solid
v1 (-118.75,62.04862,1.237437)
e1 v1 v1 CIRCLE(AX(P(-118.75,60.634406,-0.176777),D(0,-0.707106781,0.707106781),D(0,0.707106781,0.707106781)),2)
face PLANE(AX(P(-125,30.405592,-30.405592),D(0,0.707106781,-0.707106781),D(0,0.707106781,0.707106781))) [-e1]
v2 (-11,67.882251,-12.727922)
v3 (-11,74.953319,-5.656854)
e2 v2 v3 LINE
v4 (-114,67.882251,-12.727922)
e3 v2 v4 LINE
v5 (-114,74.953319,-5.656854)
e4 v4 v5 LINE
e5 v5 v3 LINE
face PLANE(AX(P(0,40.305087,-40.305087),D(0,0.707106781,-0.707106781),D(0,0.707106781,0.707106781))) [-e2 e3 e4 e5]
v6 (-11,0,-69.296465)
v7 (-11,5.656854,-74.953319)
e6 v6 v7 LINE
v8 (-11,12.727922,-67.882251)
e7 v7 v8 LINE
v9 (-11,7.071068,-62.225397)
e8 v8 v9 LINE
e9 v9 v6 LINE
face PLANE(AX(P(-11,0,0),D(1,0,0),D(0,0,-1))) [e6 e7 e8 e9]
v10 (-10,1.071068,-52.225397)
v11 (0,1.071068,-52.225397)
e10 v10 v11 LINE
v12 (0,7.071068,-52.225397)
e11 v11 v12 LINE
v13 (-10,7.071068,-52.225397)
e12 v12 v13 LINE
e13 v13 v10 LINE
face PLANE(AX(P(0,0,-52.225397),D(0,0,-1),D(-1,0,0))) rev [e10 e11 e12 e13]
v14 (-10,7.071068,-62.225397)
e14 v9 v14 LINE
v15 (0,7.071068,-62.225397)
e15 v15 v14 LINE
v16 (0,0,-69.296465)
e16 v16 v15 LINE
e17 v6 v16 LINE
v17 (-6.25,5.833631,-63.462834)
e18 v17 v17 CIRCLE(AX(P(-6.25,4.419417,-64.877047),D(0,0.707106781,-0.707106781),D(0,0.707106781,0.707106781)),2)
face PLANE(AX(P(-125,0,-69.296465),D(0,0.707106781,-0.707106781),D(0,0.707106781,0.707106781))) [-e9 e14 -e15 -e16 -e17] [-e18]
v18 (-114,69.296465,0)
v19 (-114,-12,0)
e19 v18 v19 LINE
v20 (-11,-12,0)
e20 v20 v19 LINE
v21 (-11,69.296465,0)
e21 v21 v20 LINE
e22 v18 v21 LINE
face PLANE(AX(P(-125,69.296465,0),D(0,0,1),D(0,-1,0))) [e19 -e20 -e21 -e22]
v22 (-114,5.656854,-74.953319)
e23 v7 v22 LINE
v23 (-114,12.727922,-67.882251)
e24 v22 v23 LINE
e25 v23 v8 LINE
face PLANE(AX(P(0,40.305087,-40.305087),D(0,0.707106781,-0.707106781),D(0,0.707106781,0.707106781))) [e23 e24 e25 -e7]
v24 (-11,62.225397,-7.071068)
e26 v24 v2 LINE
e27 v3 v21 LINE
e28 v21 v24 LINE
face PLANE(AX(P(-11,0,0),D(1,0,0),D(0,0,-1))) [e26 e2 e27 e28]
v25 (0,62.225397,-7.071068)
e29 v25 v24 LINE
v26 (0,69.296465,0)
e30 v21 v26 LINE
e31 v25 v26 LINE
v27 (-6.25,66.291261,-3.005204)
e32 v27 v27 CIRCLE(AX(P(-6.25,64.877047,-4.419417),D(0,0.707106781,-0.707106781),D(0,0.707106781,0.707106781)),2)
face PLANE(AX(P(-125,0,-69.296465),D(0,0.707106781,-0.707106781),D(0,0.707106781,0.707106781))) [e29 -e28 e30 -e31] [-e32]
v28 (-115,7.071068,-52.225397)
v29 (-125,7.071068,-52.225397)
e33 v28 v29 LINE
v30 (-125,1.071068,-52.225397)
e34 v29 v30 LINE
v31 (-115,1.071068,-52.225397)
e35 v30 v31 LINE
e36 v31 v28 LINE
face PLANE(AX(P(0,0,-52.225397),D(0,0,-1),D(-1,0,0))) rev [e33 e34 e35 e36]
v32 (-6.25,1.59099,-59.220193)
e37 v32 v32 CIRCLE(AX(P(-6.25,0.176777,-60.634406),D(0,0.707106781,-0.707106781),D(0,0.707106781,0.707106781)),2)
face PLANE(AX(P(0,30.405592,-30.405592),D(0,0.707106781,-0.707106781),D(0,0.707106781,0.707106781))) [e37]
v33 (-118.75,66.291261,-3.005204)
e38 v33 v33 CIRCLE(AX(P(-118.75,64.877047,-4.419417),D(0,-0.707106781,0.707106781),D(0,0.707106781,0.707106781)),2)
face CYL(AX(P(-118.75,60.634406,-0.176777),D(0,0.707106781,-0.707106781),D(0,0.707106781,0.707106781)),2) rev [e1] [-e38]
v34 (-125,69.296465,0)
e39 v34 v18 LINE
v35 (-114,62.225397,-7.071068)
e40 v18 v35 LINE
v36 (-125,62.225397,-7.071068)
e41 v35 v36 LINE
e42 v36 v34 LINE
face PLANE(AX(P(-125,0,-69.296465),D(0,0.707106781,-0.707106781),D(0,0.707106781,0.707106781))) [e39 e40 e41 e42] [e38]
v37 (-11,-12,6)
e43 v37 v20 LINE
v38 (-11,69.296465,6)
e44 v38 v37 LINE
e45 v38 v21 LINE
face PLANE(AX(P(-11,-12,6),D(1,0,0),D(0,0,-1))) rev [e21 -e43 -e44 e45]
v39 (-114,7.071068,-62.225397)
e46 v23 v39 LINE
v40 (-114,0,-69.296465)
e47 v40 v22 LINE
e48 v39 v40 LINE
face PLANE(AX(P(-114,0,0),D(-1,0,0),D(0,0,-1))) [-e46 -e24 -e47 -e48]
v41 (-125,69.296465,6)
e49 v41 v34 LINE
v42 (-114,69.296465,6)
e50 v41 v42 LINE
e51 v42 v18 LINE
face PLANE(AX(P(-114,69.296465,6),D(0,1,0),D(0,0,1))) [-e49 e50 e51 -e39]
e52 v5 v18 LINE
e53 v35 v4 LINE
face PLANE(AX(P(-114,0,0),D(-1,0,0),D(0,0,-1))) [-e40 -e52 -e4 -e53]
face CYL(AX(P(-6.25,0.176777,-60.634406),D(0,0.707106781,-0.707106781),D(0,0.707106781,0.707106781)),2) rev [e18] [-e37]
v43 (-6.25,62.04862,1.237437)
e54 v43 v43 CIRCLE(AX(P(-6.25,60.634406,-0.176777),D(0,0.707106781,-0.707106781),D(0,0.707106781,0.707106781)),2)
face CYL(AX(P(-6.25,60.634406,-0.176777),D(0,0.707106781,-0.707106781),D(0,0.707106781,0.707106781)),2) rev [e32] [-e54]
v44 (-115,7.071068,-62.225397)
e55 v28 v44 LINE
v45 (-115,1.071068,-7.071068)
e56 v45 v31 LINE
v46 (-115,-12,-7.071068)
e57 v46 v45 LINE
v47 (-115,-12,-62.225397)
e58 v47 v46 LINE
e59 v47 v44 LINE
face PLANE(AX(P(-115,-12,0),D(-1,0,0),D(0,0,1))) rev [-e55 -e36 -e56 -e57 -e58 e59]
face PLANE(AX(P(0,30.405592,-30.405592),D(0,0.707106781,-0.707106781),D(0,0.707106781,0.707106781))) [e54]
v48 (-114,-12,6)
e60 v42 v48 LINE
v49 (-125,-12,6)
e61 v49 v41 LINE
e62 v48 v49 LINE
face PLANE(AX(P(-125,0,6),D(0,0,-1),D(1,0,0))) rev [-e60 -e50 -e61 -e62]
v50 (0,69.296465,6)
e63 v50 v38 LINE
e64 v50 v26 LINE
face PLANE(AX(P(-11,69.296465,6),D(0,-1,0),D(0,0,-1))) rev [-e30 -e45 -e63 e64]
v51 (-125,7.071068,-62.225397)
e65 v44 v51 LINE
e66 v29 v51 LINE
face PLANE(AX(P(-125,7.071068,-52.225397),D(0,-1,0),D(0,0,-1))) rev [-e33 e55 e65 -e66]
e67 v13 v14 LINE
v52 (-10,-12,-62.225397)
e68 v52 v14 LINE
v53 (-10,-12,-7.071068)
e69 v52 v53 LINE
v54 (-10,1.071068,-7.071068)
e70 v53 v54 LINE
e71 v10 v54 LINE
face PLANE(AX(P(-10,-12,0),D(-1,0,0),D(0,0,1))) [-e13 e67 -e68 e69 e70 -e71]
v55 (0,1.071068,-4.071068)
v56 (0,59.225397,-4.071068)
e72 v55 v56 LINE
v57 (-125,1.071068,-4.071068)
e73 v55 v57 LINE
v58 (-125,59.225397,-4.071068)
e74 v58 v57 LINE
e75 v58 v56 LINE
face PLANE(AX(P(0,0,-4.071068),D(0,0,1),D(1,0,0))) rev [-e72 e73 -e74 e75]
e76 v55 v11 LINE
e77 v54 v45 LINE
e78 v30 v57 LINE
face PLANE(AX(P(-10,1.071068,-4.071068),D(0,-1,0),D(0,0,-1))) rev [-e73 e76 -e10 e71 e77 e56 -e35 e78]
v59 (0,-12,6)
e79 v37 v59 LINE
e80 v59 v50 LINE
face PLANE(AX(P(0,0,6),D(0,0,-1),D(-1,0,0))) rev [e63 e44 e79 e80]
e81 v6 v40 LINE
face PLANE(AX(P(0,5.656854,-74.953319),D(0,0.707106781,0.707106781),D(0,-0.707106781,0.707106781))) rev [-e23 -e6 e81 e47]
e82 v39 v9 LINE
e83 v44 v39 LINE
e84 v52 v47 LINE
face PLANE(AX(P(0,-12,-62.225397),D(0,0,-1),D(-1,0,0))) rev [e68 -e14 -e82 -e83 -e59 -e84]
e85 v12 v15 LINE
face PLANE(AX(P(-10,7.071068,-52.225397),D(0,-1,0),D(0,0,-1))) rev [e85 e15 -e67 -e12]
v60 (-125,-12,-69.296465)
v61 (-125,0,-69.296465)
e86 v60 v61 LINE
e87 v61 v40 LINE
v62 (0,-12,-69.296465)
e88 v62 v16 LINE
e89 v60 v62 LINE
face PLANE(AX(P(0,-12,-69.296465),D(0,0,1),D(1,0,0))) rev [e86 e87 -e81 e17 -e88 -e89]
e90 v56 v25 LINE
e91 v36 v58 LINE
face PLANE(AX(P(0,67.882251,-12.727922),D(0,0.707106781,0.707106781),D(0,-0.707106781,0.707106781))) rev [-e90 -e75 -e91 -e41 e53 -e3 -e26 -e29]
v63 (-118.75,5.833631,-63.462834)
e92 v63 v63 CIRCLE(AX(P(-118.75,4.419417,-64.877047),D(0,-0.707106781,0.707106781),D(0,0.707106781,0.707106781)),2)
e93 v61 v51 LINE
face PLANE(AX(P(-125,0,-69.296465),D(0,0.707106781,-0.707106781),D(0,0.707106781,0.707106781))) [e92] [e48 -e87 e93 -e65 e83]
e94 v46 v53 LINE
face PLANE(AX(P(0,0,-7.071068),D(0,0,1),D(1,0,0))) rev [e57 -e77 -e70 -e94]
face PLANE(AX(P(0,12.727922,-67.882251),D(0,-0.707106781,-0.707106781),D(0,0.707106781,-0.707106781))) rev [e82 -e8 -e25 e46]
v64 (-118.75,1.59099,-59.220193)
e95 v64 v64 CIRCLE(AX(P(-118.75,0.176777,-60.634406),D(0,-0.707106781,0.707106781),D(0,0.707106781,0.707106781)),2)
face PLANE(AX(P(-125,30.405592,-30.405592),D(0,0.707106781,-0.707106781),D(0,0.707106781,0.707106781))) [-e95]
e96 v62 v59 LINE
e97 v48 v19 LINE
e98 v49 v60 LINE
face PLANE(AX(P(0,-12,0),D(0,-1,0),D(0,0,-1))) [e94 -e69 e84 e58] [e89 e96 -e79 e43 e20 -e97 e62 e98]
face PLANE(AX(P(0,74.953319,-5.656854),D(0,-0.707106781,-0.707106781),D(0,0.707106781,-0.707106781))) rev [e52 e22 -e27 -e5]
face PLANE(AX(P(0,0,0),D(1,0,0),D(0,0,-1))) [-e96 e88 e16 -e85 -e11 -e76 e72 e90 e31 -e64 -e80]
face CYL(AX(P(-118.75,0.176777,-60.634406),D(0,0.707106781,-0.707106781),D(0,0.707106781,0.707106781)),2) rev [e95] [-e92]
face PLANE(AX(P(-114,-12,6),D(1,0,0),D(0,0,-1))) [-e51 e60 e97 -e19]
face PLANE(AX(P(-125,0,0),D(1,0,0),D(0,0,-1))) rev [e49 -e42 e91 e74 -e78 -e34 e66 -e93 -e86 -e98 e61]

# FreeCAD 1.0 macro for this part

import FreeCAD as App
import Part
import Sketcher
from FreeCAD import Vector
Q = App.Units.Quantity


def add_polygon(sketch, points):
    """Adds a closed chain of lines whose ends are joined by coincident constraints."""
    first, n = sketch.GeometryCount, len(points)
    for a, b in zip(points, points[1:] + points[:1]):
        sketch.addGeometry(Part.LineSegment(App.Vector(*a, 0), App.Vector(*b, 0)), False)
    for i in range(n):
        sketch.addConstraint(Sketcher.Constraint("Coincident", first + i, 2, first + (i + 1) % n, 1))

doc = App.newDocument("Part")
body = doc.addObject("PartDesign::Body", "Body")

sketch1 = doc.addObject("Sketcher::SketchObject", "Sketch")
body.addObject(sketch1)
sketch1.AttachmentSupport = (doc.YZ_Plane, [""])
sketch1.MapMode = "FlatFace"
add_polygon(sketch1, [(0, 0), (0, -69), (69, 0)])
sketch1.addConstraint(Sketcher.Constraint("Vertical", 0))
sketch1.addConstraint(Sketcher.Constraint("Horizontal", 2))
sketch1.addConstraint(Sketcher.Constraint("Coincident", 2, 2, -1, 1))
sketch1.addConstraint(Sketcher.Constraint("Equal", 2, 0))
sketch1.addConstraint(Sketcher.Constraint("Distance", 1, Q("98 mm")))
pad1 = doc.addObject("PartDesign::Pad", "Pad")
body.addObject(pad1)
pad1.Profile = sketch1
pad1.Length = 125
pad1.Reversed = True

sketch2 = doc.addObject("Sketcher::SketchObject", "Sketch001")
body.addObject(sketch2)
sketch2.AttachmentSupport = (doc.XZ_Plane, [""])
sketch2.MapMode = "FlatFace"
add_polygon(sketch2, [(-125, 0), (-125, -69), (0, -69), (0, 0)])
sketch2.addConstraint(Sketcher.Constraint("Vertical", 0))
sketch2.addConstraint(Sketcher.Constraint("Horizontal", 1))
sketch2.addConstraint(Sketcher.Constraint("Vertical", 2))
sketch2.addConstraint(Sketcher.Constraint("Horizontal", 3))
sketch2.addConstraint(Sketcher.Constraint("Coincident", 2, 2, -1, 1))
sketch2.addConstraint(Sketcher.Constraint("DistanceX", 1, 1, 1, 2, Q("125 mm")))
sketch2.addConstraint(Sketcher.Constraint("DistanceY", 0, 2, 0, 1, Q("69.296465 mm")))
pad2 = doc.addObject("PartDesign::Pad", "Pad001")
body.addObject(pad2)
pad2.Profile = sketch2
pad2.Length = 12

sketch3 = doc.addObject("Sketcher::SketchObject", "Sketch002")
body.addObject(sketch3)
sketch3.AttachmentSupport = (doc.YZ_Plane, [""])
sketch3.MapMode = "FlatFace"
sketch3.AttachmentOffset = App.Placement(Vector(0, 0, -125), App.Rotation())
add_polygon(sketch3, [(62, -7), (7, -62), (7, -7)])
sketch3.addConstraint(Sketcher.Constraint("Vertical", 1))
sketch3.addConstraint(Sketcher.Constraint("Horizontal", 2))
sketch3.addConstraint(Sketcher.Constraint("Equal", 2, 1))
sketch3.addConstraint(Sketcher.Constraint("Distance", 0, Q("78 mm")))
sketch3.addConstraint(Sketcher.Constraint("DistanceX", -1, 1, 0, 2, Q("7.071068 mm")))
sketch3.addConstraint(Sketcher.Constraint("DistanceY", 0, 2, -1, 1, Q("62.225397 mm")))
pocket1 = doc.addObject("PartDesign::Pocket", "Pocket")
body.addObject(pocket1)
pocket1.Profile = sketch3
pocket1.Type = "ThroughAll"
pocket1.Reversed = True

sketch4 = doc.addObject("Sketcher::SketchObject", "Sketch003")
body.addObject(sketch4)
sketch4.Placement = App.Placement(Vector(0, 34.648232, -34.648232), App.Rotation(Vector(1, 0, 0), Vector(0, -0.707106781, -0.707106781), Vector(0, 0.707106781, -0.707106781), "ZXY"))
add_polygon(sketch4, [(-115, 49), (-115, 39), (-10, 39), (-10, 49)])
sketch4.addConstraint(Sketcher.Constraint("Vertical", 0))
sketch4.addConstraint(Sketcher.Constraint("Horizontal", 1))
sketch4.addConstraint(Sketcher.Constraint("Vertical", 2))
sketch4.addConstraint(Sketcher.Constraint("Horizontal", 3))
sketch4.addConstraint(Sketcher.Constraint("DistanceX", 1, 1, 1, 2, Q("105 mm")))
sketch4.addConstraint(Sketcher.Constraint("DistanceY", 0, 2, 0, 1, Q("10 mm")))
sketch4.addConstraint(Sketcher.Constraint("DistanceX", 0, 2, -1, 1, Q("115 mm")))
sketch4.addConstraint(Sketcher.Constraint("DistanceY", -1, 1, 0, 2, Q("39 mm")))
pad3 = doc.addObject("PartDesign::Pad", "Pad002")
body.addObject(pad3)
pad3.Profile = sketch4
pad3.Length = 8

sketch5 = doc.addObject("Sketcher::SketchObject", "Sketch004")
body.addObject(sketch5)
sketch5.Placement = App.Placement(Vector(0, 34.648232, -34.648232), App.Rotation(Vector(1, 0, 0), Vector(0, -0.707106781, -0.707106781), Vector(0, 0.707106781, -0.707106781), "ZXY"))
add_polygon(sketch5, [(-115, -39), (-115, -49), (-10, -49), (-10, -39)])
sketch5.addConstraint(Sketcher.Constraint("Vertical", 0))
sketch5.addConstraint(Sketcher.Constraint("Horizontal", 1))
sketch5.addConstraint(Sketcher.Constraint("Vertical", 2))
sketch5.addConstraint(Sketcher.Constraint("Horizontal", 3))
sketch5.addConstraint(Sketcher.Constraint("DistanceX", 1, 1, 1, 2, Q("105 mm")))
sketch5.addConstraint(Sketcher.Constraint("DistanceY", 0, 2, 0, 1, Q("10 mm")))
sketch5.addConstraint(Sketcher.Constraint("DistanceX", 0, 2, -1, 1, Q("115 mm")))
sketch5.addConstraint(Sketcher.Constraint("DistanceY", 0, 2, -1, 1, Q("49 mm")))
pad4 = doc.addObject("PartDesign::Pad", "Pad003")
body.addObject(pad4)
pad4.Profile = sketch5
pad4.Length = 8

sketch6 = doc.addObject("Sketcher::SketchObject", "Sketch005")
body.addObject(sketch6)
sketch6.AttachmentSupport = (doc.XZ_Plane, [""])
sketch6.MapMode = "FlatFace"
sketch6.AttachmentOffset = App.Placement(Vector(0, 0, -7.071068), App.Rotation())
add_polygon(sketch6, [(-115, -62), (-115, -7), (-10, -7), (-10, -62)])
sketch6.addConstraint(Sketcher.Constraint("Vertical", 0))
sketch6.addConstraint(Sketcher.Constraint("Horizontal", 1))
sketch6.addConstraint(Sketcher.Constraint("Vertical", 2))
sketch6.addConstraint(Sketcher.Constraint("Horizontal", 3))
sketch6.addConstraint(Sketcher.Constraint("DistanceX", 1, 1, 1, 2, Q("105 mm")))
sketch6.addConstraint(Sketcher.Constraint("DistanceX", 0, 2, -1, 1, Q("115 mm")))
sketch6.addConstraint(Sketcher.Constraint("DistanceY", 0, 1, 0, 2, Q("55.154329 mm")))
sketch6.addConstraint(Sketcher.Constraint("DistanceY", 0, 2, -1, 1, Q("7.071068 mm")))
pocket2 = doc.addObject("PartDesign::Pocket", "Pocket001")
body.addObject(pocket2)
pocket2.Profile = sketch6
pocket2.Type = "ThroughAll"
pocket2.Reversed = True

sketch7 = doc.addObject("Sketcher::SketchObject", "Sketch006")
body.addObject(sketch7)
sketch7.AttachmentSupport = (doc.XZ_Plane, [""])
sketch7.MapMode = "FlatFace"
sketch7.AttachmentOffset = App.Placement(Vector(0, 0, -7.071068), App.Rotation())
add_polygon(sketch7, [(-10, -62), (-10, -7), (0, -7), (0, -62)])
sketch7.addConstraint(Sketcher.Constraint("Vertical", 0))
sketch7.addConstraint(Sketcher.Constraint("Horizontal", 1))
sketch7.addConstraint(Sketcher.Constraint("Vertical", 2))
sketch7.addConstraint(Sketcher.Constraint("Horizontal", 3))
sketch7.addConstraint(Sketcher.Constraint("PointOnObject", 1, 2, -2))
sketch7.addConstraint(Sketcher.Constraint("DistanceX", 1, 1, 1, 2, Q("10 mm")))
sketch7.addConstraint(Sketcher.Constraint("DistanceY", 0, 1, 0, 2, Q("55.154329 mm")))
sketch7.addConstraint(Sketcher.Constraint("DistanceY", 0, 2, -1, 1, Q("7.071068 mm")))
pocket3 = doc.addObject("PartDesign::Pocket", "Pocket002")
body.addObject(pocket3)
pocket3.Profile = sketch7
pocket3.Length = 6
pocket3.Reversed = True

sketch8 = doc.addObject("Sketcher::SketchObject", "Sketch007")
body.addObject(sketch8)
sketch8.AttachmentSupport = (doc.XZ_Plane, [""])
sketch8.MapMode = "FlatFace"
sketch8.AttachmentOffset = App.Placement(Vector(0, 0, -7.071068), App.Rotation())
add_polygon(sketch8, [(-125, -62), (-125, -7), (-115, -7), (-115, -62)])
sketch8.addConstraint(Sketcher.Constraint("Vertical", 0))
sketch8.addConstraint(Sketcher.Constraint("Horizontal", 1))
sketch8.addConstraint(Sketcher.Constraint("Vertical", 2))
sketch8.addConstraint(Sketcher.Constraint("Horizontal", 3))
sketch8.addConstraint(Sketcher.Constraint("DistanceX", 1, 1, 1, 2, Q("10 mm")))
sketch8.addConstraint(Sketcher.Constraint("DistanceX", 0, 2, -1, 1, Q("125 mm")))
sketch8.addConstraint(Sketcher.Constraint("DistanceY", 0, 1, 0, 2, Q("55.154329 mm")))
sketch8.addConstraint(Sketcher.Constraint("DistanceY", 0, 2, -1, 1, Q("7.071068 mm")))
pocket4 = doc.addObject("PartDesign::Pocket", "Pocket003")
body.addObject(pocket4)
pocket4.Profile = sketch8
pocket4.Length = 6
pocket4.Reversed = True

sketch9 = doc.addObject("Sketcher::SketchObject", "Sketch008")
body.addObject(sketch9)
sketch9.AttachmentSupport = (doc.XY_Plane, [""])
sketch9.MapMode = "FlatFace"
sketch9.AttachmentOffset = App.Placement(Vector(0, 0, -7.071068), App.Rotation())
add_polygon(sketch9, [(-10, 62), (-10, 1), (-115, 1), (-115, 62)])
sketch9.addConstraint(Sketcher.Constraint("Vertical", 0))
sketch9.addConstraint(Sketcher.Constraint("Horizontal", 1))
sketch9.addConstraint(Sketcher.Constraint("Vertical", 2))
sketch9.addConstraint(Sketcher.Constraint("Horizontal", 3))
sketch9.addConstraint(Sketcher.Constraint("DistanceX", 1, 2, 1, 1, Q("105 mm")))
sketch9.addConstraint(Sketcher.Constraint("DistanceX", 0, 2, -1, 1, Q("10 mm")))
sketch9.addConstraint(Sketcher.Constraint("DistanceY", 0, 2, 0, 1, Q("61.154329 mm")))
sketch9.addConstraint(Sketcher.Constraint("DistanceY", -1, 1, 0, 2, Q("1.071068 mm")))
pocket5 = doc.addObject("PartDesign::Pocket", "Pocket004")
body.addObject(pocket5)
pocket5.Profile = sketch9
pocket5.Length = 3
pocket5.Reversed = True

sketch10 = doc.addObject("Sketcher::SketchObject", "Sketch009")
body.addObject(sketch10)
sketch10.Placement = App.Placement(Vector(0, 34.648232, -34.648232), App.Rotation(Vector(1, 0, 0), Vector(0, -0.707106781, -0.707106781), Vector(0, 0.707106781, -0.707106781), "ZXY"))
sketch10.addGeometry(Part.Circle(Vector(-6.2, 42.7, 0), Vector(0, 0, 1), 1.9), False)
sketch10.addConstraint(Sketcher.Constraint("Diameter", 0, Q("3.8 mm")))
sketch10.addConstraint(Sketcher.Constraint("DistanceX", 0, 3, -1, 1, Q("6.25 mm")))
sketch10.addConstraint(Sketcher.Constraint("DistanceY", -1, 1, 0, 3, Q("42.75 mm")))
pocket6 = doc.addObject("PartDesign::Pocket", "Pocket005")
body.addObject(pocket6)
pocket6.Profile = sketch10
pocket6.Length = 6
doc.recompute()

datumplane = doc.addObject("PartDesign::Plane", "DatumPlane")
body.addObject(datumplane)
datumplane.AttachmentSupport = (doc.YZ_Plane, [""])
datumplane.MapMode = "FlatFace"
datumplane.AttachmentOffset = App.Placement(Vector(0, 0, -62.5), App.Rotation())
mirrored = doc.addObject("PartDesign::Mirrored", "Mirrored")
body.addObject(mirrored)
mirrored.Originals = [pocket6]
mirrored.MirrorPlane = (datumplane, [""])
body.Tip = mirrored

sketch11 = doc.addObject("Sketcher::SketchObject", "Sketch010")
body.addObject(sketch11)
sketch11.Placement = App.Placement(Vector(0, 34.648232, -34.648232), App.Rotation(Vector(1, 0, 0), Vector(0, -0.707106781, -0.707106781), Vector(0, 0.707106781, -0.707106781), "ZXY"))
sketch11.addGeometry(Part.Circle(Vector(-6.2, -42.7, 0), Vector(0, 0, 1), 1.9), False)
sketch11.addConstraint(Sketcher.Constraint("Diameter", 0, Q("3.8 mm")))
sketch11.addConstraint(Sketcher.Constraint("DistanceX", 0, 3, -1, 1, Q("6.25 mm")))
sketch11.addConstraint(Sketcher.Constraint("DistanceY", 0, 3, -1, 1, Q("42.75 mm")))
pocket7 = doc.addObject("PartDesign::Pocket", "Pocket006")
body.addObject(pocket7)
pocket7.Profile = sketch11
pocket7.Length = 6
doc.recompute()

datumplane2 = doc.addObject("PartDesign::Plane", "DatumPlane001")
body.addObject(datumplane2)
datumplane2.AttachmentSupport = (doc.YZ_Plane, [""])
datumplane2.MapMode = "FlatFace"
datumplane2.AttachmentOffset = App.Placement(Vector(0, 0, -62.5), App.Rotation())
mirrored2 = doc.addObject("PartDesign::Mirrored", "Mirrored001")
body.addObject(mirrored2)
mirrored2.Originals = [pocket7]
mirrored2.MirrorPlane = (datumplane2, [""])
body.Tip = mirrored2

sketch12 = doc.addObject("Sketcher::SketchObject", "Sketch011")
body.addObject(sketch12)
sketch12.AttachmentSupport = (doc.YZ_Plane, [""])
sketch12.MapMode = "FlatFace"
sketch12.AttachmentOffset = App.Placement(Vector(0, 0, -10), App.Rotation())
add_polygon(sketch12, [(62.2, -7.1), (59.2, -4.1), (62.2, -4.1)])
sketch12.addConstraint(Sketcher.Constraint("Horizontal", 1))
sketch12.addConstraint(Sketcher.Constraint("Vertical", 2))
sketch12.addConstraint(Sketcher.Constraint("Equal", 1, 2))
sketch12.addConstraint(Sketcher.Constraint("DistanceX", 1, 1, 1, 2, Q("3 mm")))
sketch12.addConstraint(Sketcher.Constraint("DistanceX", -1, 1, 0, 2, Q("59.225397 mm")))
sketch12.addConstraint(Sketcher.Constraint("DistanceY", 0, 2, -1, 1, Q("4.071068 mm")))
pad5 = doc.addObject("PartDesign::Pad", "Pad004")
body.addObject(pad5)
pad5.Profile = sketch12
pad5.Type = "UpToFirst"
pad5.Reversed = True

sketch13 = doc.addObject("Sketcher::SketchObject", "Sketch012")
body.addObject(sketch13)
sketch13.AttachmentSupport = (doc.XY_Plane, [""])
sketch13.MapMode = "FlatFace"
sketch13.AttachmentOffset = App.Placement(Vector(0, 0, -62.225397), App.Rotation())
add_polygon(sketch13, [(-10, 7), (-10, 1), (0, 1), (0, 7)])
add_polygon(sketch13, [(-125, 7), (-125, 1), (-115, 1), (-115, 7)])
sketch13.addConstraint(Sketcher.Constraint("Vertical", 0))
sketch13.addConstraint(Sketcher.Constraint("Horizontal", 1))
sketch13.addConstraint(Sketcher.Constraint("Vertical", 2))
sketch13.addConstraint(Sketcher.Constraint("Horizontal", 3))
sketch13.addConstraint(Sketcher.Constraint("Vertical", 4))
sketch13.addConstraint(Sketcher.Constraint("Horizontal", 5))
sketch13.addConstraint(Sketcher.Constraint("Vertical", 6))
sketch13.addConstraint(Sketcher.Constraint("Horizontal", 7))
sketch13.addConstraint(Sketcher.Constraint("PointOnObject", 1, 2, -2))
sketch13.addConstraint(Sketcher.Constraint("Horizontal", 1, 2, 4, 2))
sketch13.addConstraint(Sketcher.Constraint("Horizontal", 3, 2, 6, 2))
sketch13.addConstraint(Sketcher.Constraint("Equal", 3, 5))
sketch13.addConstraint(Sketcher.Constraint("DistanceX", 1, 1, 1, 2, Q("10 mm")))
sketch13.addConstraint(Sketcher.Constraint("DistanceY", 0, 2, 0, 1, Q("6 mm")))
sketch13.addConstraint(Sketcher.Constraint("DistanceX", 4, 2, -1, 1, Q("125 mm")))
sketch13.addConstraint(Sketcher.Constraint("DistanceY", -1, 1, 0, 2, Q("1.071068 mm")))
pad6 = doc.addObject("PartDesign::Pad", "Pad005")
body.addObject(pad6)
pad6.Profile = sketch13
pad6.Length = 10

sketch14 = doc.addObject("Sketcher::SketchObject", "Sketch013")
body.addObject(sketch14)
sketch14.AttachmentSupport = (doc.YZ_Plane, [""])
sketch14.MapMode = "FlatFace"
sketch14.AttachmentOffset = App.Placement(Vector(0, 0, -10), App.Rotation())
add_polygon(sketch14, [(69, 0), (62, -7), (68, -13), (75, -6)])
sketch14.addConstraint(Sketcher.Constraint("PointOnObject", 3, 2, -1))
sketch14.addConstraint(Sketcher.Constraint("Perpendicular", 0, 1))
sketch14.addConstraint(Sketcher.Constraint("Perpendicular", 1, 2))
sketch14.addConstraint(Sketcher.Constraint("Perpendicular", 2, 3))
sketch14.addConstraint(Sketcher.Constraint("Angle", 0, Q("-135 deg")))
sketch14.addConstraint(Sketcher.Constraint("Distance", 0, Q("10 mm")))
sketch14.addConstraint(Sketcher.Constraint("Distance", 1, Q("8 mm")))
sketch14.addConstraint(Sketcher.Constraint("DistanceX", -1, 1, 1, 2, Q("67.882251 mm")))
pocket8 = doc.addObject("PartDesign::Pocket", "Pocket007")
body.addObject(pocket8)
pocket8.Profile = sketch14
pocket8.Length = 1

sketch15 = doc.addObject("Sketcher::SketchObject", "Sketch014")
body.addObject(sketch15)
sketch15.AttachmentSupport = (doc.YZ_Plane, [""])
sketch15.MapMode = "FlatFace"
sketch15.AttachmentOffset = App.Placement(Vector(0, 0, -10), App.Rotation())
add_polygon(sketch15, [(7, -62), (0, -69), (6, -75), (13, -68)])
sketch15.addConstraint(Sketcher.Constraint("PointOnObject", 0, 2, -2))
sketch15.addConstraint(Sketcher.Constraint("Perpendicular", 0, 1))
sketch15.addConstraint(Sketcher.Constraint("Perpendicular", 1, 2))
sketch15.addConstraint(Sketcher.Constraint("Perpendicular", 2, 3))
sketch15.addConstraint(Sketcher.Constraint("Angle", 0, Q("-135 deg")))
sketch15.addConstraint(Sketcher.Constraint("Distance", 0, Q("10 mm")))
sketch15.addConstraint(Sketcher.Constraint("Distance", 1, Q("8 mm")))
sketch15.addConstraint(Sketcher.Constraint("DistanceY", 1, 2, -1, 1, Q("74.953319 mm")))
pocket9 = doc.addObject("PartDesign::Pocket", "Pocket008")
body.addObject(pocket9)
pocket9.Profile = sketch15
pocket9.Length = 1
doc.recompute()

datumplane3 = doc.addObject("PartDesign::Plane", "DatumPlane002")
body.addObject(datumplane3)
datumplane3.AttachmentSupport = (doc.YZ_Plane, [""])
datumplane3.MapMode = "FlatFace"
datumplane3.AttachmentOffset = App.Placement(Vector(0, 0, -62.5), App.Rotation())
mirrored3 = doc.addObject("PartDesign::Mirrored", "Mirrored002")
body.addObject(mirrored3)
mirrored3.Originals = [pocket8, pocket9]
mirrored3.MirrorPlane = (datumplane3, [""])
body.Tip = mirrored3

sketch16 = doc.addObject("Sketcher::SketchObject", "Sketch015")
body.addObject(sketch16)
sketch16.AttachmentSupport = (doc.XY_Plane, [""])
sketch16.MapMode = "FlatFace"
add_polygon(sketch16, [(-11, 69), (-11, -12), (0, -12), (0, 69)])
sketch16.addConstraint(Sketcher.Constraint("Vertical", 0))
sketch16.addConstraint(Sketcher.Constraint("Horizontal", 1))
sketch16.addConstraint(Sketcher.Constraint("Vertical", 2))
sketch16.addConstraint(Sketcher.Constraint("Horizontal", 3))
sketch16.addConstraint(Sketcher.Constraint("PointOnObject", 1, 2, -2))
sketch16.addConstraint(Sketcher.Constraint("DistanceX", 1, 1, 1, 2, Q("11 mm")))
sketch16.addConstraint(Sketcher.Constraint("DistanceY", 0, 2, -1, 1, Q("12 mm")))
sketch16.addConstraint(Sketcher.Constraint("DistanceY", 0, 2, 0, 1, Q("81.296465 mm")))
pad7 = doc.addObject("PartDesign::Pad", "Pad006")
body.addObject(pad7)
pad7.Profile = sketch16
pad7.Length = 6
doc.recompute()

datumplane4 = doc.addObject("PartDesign::Plane", "DatumPlane003")
body.addObject(datumplane4)
datumplane4.AttachmentSupport = (doc.YZ_Plane, [""])
datumplane4.MapMode = "FlatFace"
datumplane4.AttachmentOffset = App.Placement(Vector(0, 0, -62.5), App.Rotation())
mirrored4 = doc.addObject("PartDesign::Mirrored", "Mirrored003")
body.addObject(mirrored4)
mirrored4.Originals = [pad7]
mirrored4.MirrorPlane = (datumplane4, [""])
body.Tip = mirrored4

sketch17 = doc.addObject("Sketcher::SketchObject", "Sketch016")
body.addObject(sketch17)
sketch17.Placement = App.Placement(Vector(0, 34.648232, -34.648232), App.Rotation(Vector(1, 0, 0), Vector(0, -0.707106781, -0.707106781), Vector(0, 0.707106781, -0.707106781), "ZXY"))
sketch17.addGeometry(Part.Circle(Vector(-6.2, 42.7, 0), Vector(0, 0, 1), 2), False)
sketch17.addConstraint(Sketcher.Constraint("Diameter", 0, Q("4 mm")))
sketch17.addConstraint(Sketcher.Constraint("DistanceX", 0, 3, -1, 1, Q("6.25 mm")))
sketch17.addConstraint(Sketcher.Constraint("DistanceY", -1, 1, 0, 3, Q("42.75 mm")))
pocket10 = doc.addObject("PartDesign::Pocket", "Pocket009")
body.addObject(pocket10)
pocket10.Profile = sketch17
pocket10.Length = 6

sketch18 = doc.addObject("Sketcher::SketchObject", "Sketch017")
body.addObject(sketch18)
sketch18.Placement = App.Placement(Vector(0, 34.648232, -34.648232), App.Rotation(Vector(1, 0, 0), Vector(0, -0.707106781, -0.707106781), Vector(0, 0.707106781, -0.707106781), "ZXY"))
sketch18.addGeometry(Part.Circle(Vector(-6.2, -42.7, 0), Vector(0, 0, 1), 2), False)
sketch18.addConstraint(Sketcher.Constraint("Diameter", 0, Q("4 mm")))
sketch18.addConstraint(Sketcher.Constraint("DistanceX", 0, 3, -1, 1, Q("6.25 mm")))
sketch18.addConstraint(Sketcher.Constraint("DistanceY", 0, 3, -1, 1, Q("42.75 mm")))
pocket11 = doc.addObject("PartDesign::Pocket", "Pocket010")
body.addObject(pocket11)
pocket11.Profile = sketch18
pocket11.Length = 6
doc.recompute()

datumplane5 = doc.addObject("PartDesign::Plane", "DatumPlane004")
body.addObject(datumplane5)
datumplane5.AttachmentSupport = (doc.YZ_Plane, [""])
datumplane5.MapMode = "FlatFace"
datumplane5.AttachmentOffset = App.Placement(Vector(0, 0, -62.5), App.Rotation())
mirrored5 = doc.addObject("PartDesign::Mirrored", "Mirrored004")
body.addObject(mirrored5)
mirrored5.Originals = [pocket10, pocket11]
mirrored5.MirrorPlane = (datumplane5, [""])
body.Tip = mirrored5

sketch19 = doc.addObject("Sketcher::SketchObject", "Sketch018")
body.addObject(sketch19)
sketch19.AttachmentSupport = (doc.YZ_Plane, [""])
sketch19.MapMode = "FlatFace"
sketch19.AttachmentOffset = App.Placement(Vector(0, 0, -10), App.Rotation())
add_polygon(sketch19, [(1.1, -7.1), (1.1, -4.1), (59.2, -4.1), (62.2, -7.1)])
sketch19.addConstraint(Sketcher.Constraint("Vertical", 0))
sketch19.addConstraint(Sketcher.Constraint("Horizontal", 1))
sketch19.addConstraint(Sketcher.Constraint("Horizontal", 3))
sketch19.addConstraint(Sketcher.Constraint("DistanceY", 0, 1, 0, 2, Q("3 mm")))
sketch19.addConstraint(Sketcher.Constraint("Angle", 2, Q("-45 deg")))
sketch19.addConstraint(Sketcher.Constraint("DistanceX", 1, 1, 1, 2, Q("58.154329 mm")))
sketch19.addConstraint(Sketcher.Constraint("DistanceX", -1, 1, 0, 2, Q("1.071068 mm")))
sketch19.addConstraint(Sketcher.Constraint("DistanceY", 0, 2, -1, 1, Q("4.071068 mm")))
pocket12 = doc.addObject("PartDesign::Pocket", "Pocket011")
body.addObject(pocket12)
pocket12.Profile = sketch19
pocket12.Type = "ThroughAll"
pocket12.Reversed = True

sketch20 = doc.addObject("Sketcher::SketchObject", "Sketch019")
body.addObject(sketch20)
sketch20.AttachmentSupport = (doc.YZ_Plane, [""])
sketch20.MapMode = "FlatFace"
sketch20.AttachmentOffset = App.Placement(Vector(0, 0, -115), App.Rotation())
add_polygon(sketch20, [(1.1, -4.1), (1.1, -7.1), (62.2, -7.1), (59.2, -4.1)])
sketch20.addConstraint(Sketcher.Constraint("Vertical", 0))
sketch20.addConstraint(Sketcher.Constraint("Horizontal", 1))
sketch20.addConstraint(Sketcher.Constraint("Horizontal", 3))
sketch20.addConstraint(Sketcher.Constraint("DistanceY", 0, 2, 0, 1, Q("3 mm")))
sketch20.addConstraint(Sketcher.Constraint("Angle", 2, Q("135 deg")))
sketch20.addConstraint(Sketcher.Constraint("DistanceX", 1, 1, 1, 2, Q("61.154329 mm")))
sketch20.addConstraint(Sketcher.Constraint("DistanceX", -1, 1, 0, 2, Q("1.071068 mm")))
sketch20.addConstraint(Sketcher.Constraint("DistanceY", 0, 2, -1, 1, Q("7.071068 mm")))
pocket13 = doc.addObject("PartDesign::Pocket", "Pocket012")
body.addObject(pocket13)
pocket13.Profile = sketch20
pocket13.Type = "ThroughAll"

doc.recompute()
